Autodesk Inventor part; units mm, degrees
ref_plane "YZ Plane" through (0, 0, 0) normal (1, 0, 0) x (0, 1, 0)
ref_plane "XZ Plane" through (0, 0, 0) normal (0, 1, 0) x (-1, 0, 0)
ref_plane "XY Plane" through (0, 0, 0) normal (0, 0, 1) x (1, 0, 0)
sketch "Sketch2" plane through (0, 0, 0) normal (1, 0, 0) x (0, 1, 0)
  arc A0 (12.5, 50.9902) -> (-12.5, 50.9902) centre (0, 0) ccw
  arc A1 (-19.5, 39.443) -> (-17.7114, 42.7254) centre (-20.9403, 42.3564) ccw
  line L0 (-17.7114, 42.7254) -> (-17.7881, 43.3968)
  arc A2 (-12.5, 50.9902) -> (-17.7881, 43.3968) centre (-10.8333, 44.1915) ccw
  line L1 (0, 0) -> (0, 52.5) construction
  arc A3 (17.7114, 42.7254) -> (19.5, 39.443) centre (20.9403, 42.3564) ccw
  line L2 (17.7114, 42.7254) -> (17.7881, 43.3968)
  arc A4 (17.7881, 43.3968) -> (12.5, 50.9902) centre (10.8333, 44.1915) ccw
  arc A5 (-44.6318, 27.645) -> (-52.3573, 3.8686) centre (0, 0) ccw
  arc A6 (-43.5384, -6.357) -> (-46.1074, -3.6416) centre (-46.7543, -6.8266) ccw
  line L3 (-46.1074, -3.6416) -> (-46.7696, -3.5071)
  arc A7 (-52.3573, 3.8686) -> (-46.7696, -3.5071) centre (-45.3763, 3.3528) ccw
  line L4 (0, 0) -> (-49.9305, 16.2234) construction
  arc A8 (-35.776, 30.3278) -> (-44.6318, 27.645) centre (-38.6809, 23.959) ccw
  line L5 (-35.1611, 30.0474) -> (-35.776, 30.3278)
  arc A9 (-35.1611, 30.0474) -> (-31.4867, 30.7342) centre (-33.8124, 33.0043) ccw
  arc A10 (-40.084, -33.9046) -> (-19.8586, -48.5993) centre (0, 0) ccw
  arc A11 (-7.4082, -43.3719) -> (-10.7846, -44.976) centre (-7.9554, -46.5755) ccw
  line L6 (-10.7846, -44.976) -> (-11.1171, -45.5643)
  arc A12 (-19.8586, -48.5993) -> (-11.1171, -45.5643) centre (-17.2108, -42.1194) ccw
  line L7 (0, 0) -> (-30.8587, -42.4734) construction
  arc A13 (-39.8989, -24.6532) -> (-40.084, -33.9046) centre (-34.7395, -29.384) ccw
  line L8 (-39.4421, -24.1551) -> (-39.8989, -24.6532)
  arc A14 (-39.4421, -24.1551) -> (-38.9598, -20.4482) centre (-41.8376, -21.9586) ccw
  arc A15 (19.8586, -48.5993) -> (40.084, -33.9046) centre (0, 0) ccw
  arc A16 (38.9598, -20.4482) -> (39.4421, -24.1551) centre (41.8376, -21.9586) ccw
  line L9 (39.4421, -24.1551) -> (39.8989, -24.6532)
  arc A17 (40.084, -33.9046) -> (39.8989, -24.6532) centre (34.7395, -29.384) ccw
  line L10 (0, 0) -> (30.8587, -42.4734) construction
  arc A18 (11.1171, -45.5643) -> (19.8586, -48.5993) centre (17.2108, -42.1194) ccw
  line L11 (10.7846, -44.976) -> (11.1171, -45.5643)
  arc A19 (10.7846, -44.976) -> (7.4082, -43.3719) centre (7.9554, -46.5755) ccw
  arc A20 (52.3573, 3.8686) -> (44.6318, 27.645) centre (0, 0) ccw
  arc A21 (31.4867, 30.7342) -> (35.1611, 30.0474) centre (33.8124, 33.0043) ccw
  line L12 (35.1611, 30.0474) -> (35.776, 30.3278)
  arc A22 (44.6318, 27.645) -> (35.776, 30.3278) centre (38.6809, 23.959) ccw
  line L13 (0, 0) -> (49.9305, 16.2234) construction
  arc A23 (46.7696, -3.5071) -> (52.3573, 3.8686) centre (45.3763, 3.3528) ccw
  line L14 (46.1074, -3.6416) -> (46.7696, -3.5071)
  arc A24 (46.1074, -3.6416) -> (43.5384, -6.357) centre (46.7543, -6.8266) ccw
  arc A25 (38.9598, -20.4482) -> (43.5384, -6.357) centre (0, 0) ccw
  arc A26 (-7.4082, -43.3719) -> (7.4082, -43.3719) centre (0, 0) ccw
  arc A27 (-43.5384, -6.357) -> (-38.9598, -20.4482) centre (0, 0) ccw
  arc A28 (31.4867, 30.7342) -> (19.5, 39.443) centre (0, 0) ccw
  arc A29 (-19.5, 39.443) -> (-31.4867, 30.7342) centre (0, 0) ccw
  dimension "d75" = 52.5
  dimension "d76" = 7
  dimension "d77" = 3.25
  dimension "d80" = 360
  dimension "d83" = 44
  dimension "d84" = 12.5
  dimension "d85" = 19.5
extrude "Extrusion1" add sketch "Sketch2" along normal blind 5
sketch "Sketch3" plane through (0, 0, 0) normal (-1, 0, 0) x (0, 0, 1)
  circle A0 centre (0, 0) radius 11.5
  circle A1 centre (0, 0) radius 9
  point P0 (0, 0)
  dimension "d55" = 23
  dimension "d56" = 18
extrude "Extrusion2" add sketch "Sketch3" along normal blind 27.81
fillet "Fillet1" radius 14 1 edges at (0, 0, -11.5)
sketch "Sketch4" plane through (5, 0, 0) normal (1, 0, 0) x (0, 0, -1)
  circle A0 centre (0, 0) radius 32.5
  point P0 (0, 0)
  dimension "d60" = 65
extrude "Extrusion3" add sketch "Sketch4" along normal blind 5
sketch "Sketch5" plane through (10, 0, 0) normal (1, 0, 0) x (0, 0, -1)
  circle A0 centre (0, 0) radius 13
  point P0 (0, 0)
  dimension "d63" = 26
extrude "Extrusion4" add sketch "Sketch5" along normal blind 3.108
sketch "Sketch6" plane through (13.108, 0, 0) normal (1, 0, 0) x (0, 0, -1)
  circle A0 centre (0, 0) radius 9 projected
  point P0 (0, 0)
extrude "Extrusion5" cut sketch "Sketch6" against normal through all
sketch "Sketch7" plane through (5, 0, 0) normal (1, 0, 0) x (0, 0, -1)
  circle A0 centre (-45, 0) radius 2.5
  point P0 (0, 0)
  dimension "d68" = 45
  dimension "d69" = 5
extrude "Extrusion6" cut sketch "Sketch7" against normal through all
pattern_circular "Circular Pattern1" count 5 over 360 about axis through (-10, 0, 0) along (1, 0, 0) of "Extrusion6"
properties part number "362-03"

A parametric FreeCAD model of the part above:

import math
import FreeCAD as App
import Part
import Sketcher
from FreeCAD import Vector


def edges_at(feature, points):
    """Names of the edges that pass closest to the given points."""
    edges = feature.Shape.Edges
    near = lambda p: min(range(len(edges)), key=lambda i: edges[i].distToShape(Part.Vertex(*p))[0])
    return sorted({f"Edge{near(p) + 1}" for p in points})

doc = App.newDocument("Part")
body = doc.addObject("PartDesign::Body", "Body")

sketch1 = body.newObject("Sketcher::SketchObject", "Sketch")
sketch1.AttachmentSupport = (doc.getObject("YZ_Plane"), [""])
sketch1.MapMode = "FlatFace"
sketch1.addGeometry([
    Part.ArcOfCircle(Part.Circle(Vector(10.8333, 44.1915, 0), Vector(0, 0, 1), 7.000057), math.radians(-6.51871), math.radians(76.225602)),
    Part.ArcOfCircle(Part.Circle(Vector(0, 0, 0), Vector(0, 0, 1), 52.500005), math.radians(76.225854), math.radians(103.774146)),
    Part.ArcOfCircle(Part.Circle(Vector(-10.8333, 44.1915, 0), Vector(0, 0, 1), 7.000015), math.radians(103.774398), math.radians(186.51871)),
    Part.LineSegment(Vector(-17.7881, 43.3968, 0), Vector(-17.7114, 42.7254, 0)),
    Part.ArcOfCircle(Part.Circle(Vector(-20.9403, 42.3564, 0), Vector(0, 0, 1), 3.249979), math.radians(-63.693551), math.radians(6.519501)),
    Part.ArcOfCircle(Part.Circle(Vector(0.000636, -0.001052, 0), Vector(0, 0, 1), 44.001228), math.radians(116.307204), math.radians(135.6925)),
    Part.ArcOfCircle(Part.Circle(Vector(-33.8124, 33.0043, 0), Vector(0, 0, 1), 3.249961), math.radians(-114.518658), math.radians(-44.306869)),
    Part.LineSegment(Vector(-35.1611, 30.0474, 0), Vector(-35.776, 30.3278, 0)),
    Part.ArcOfCircle(Part.Circle(Vector(-38.6809, 23.959, 0), Vector(0, 0, 1), 7.000004), math.radians(65.481598), math.radians(148.225839)),
    Part.ArcOfCircle(Part.Circle(Vector(0.001412, -0.000655, 0), Vector(0, 0, 1), 52.501484), math.radians(148.226071), math.radians(175.773583)),
    Part.ArcOfCircle(Part.Circle(Vector(-45.3763, 3.3528, 0), Vector(0, 0, 1), 7.000029), math.radians(175.774307), math.radians(258.518949)),
    Part.LineSegment(Vector(-46.7696, -3.5071, 0), Vector(-46.1074, -3.6416, 0)),
    Part.ArcOfCircle(Part.Circle(Vector(-46.7543, -6.8266, 0), Vector(0, 0, 1), 3.250006), math.radians(8.307866), math.radians(78.518926)),
    Part.ArcOfCircle(Part.Circle(Vector(-0.003432, -0.000802, 0), Vector(0, 0, 1), 43.99653), math.radians(-171.693385), math.radians(-152.305941)),
    Part.ArcOfCircle(Part.Circle(Vector(-41.8376, -21.9586, 0), Vector(0, 0, 1), 3.250082), math.radians(-42.518569), math.radians(27.692527)),
    Part.LineSegment(Vector(-39.4421, -24.1551, 0), Vector(-39.8989, -24.6532, 0)),
    Part.ArcOfCircle(Part.Circle(Vector(-34.7395, -29.384, 0), Vector(0, 0, 1), 6.999991), math.radians(137.481407), math.radians(220.225928)),
    Part.ArcOfCircle(Part.Circle(Vector(0.000794, 0.000855, 0), Vector(0, 0, 1), 52.501149), math.radians(-139.774012), math.radians(-112.22631)),
    Part.ArcOfCircle(Part.Circle(Vector(-17.2108, -42.1194, 0), Vector(0, 0, 1), 6.999996), math.radians(-112.22578), math.radians(-29.480412)),
    Part.LineSegment(Vector(-11.1171, -45.5643, 0), Vector(-10.7846, -44.976, 0)),
    Part.ArcOfCircle(Part.Circle(Vector(-7.9554, -46.5755, 0), Vector(0, 0, 1), 3.249997), math.radians(80.306975), math.radians(150.518172)),
    Part.ArcOfCircle(Part.Circle(Vector(0, 0, 0), Vector(0, 0, 1), 44.000036), math.radians(-99.692947), math.radians(-80.307053)),
    Part.ArcOfCircle(Part.Circle(Vector(7.9554, -46.5755, 0), Vector(0, 0, 1), 3.250042), math.radians(29.481828), math.radians(99.693025)),
    Part.LineSegment(Vector(10.7846, -44.976, 0), Vector(11.1171, -45.5643, 0)),
    Part.ArcOfCircle(Part.Circle(Vector(17.2108, -42.1194, 0), Vector(0, 0, 1), 7.000037), math.radians(-150.519588), math.radians(-67.77422)),
    Part.ArcOfCircle(Part.Circle(Vector(0.000568, -0.00102, 0), Vector(0, 0, 1), 52.498898), math.radians(-67.774292), math.radians(-40.225386)),
    Part.ArcOfCircle(Part.Circle(Vector(34.7395, -29.384, 0), Vector(0, 0, 1), 6.999965), math.radians(-40.225928), math.radians(42.518593)),
    Part.LineSegment(Vector(39.8989, -24.6532, 0), Vector(39.4421, -24.1551, 0)),
    Part.ArcOfCircle(Part.Circle(Vector(41.8376, -21.9586, 0), Vector(0, 0, 1), 3.250083), math.radians(152.307473), math.radians(222.518569)),
    Part.ArcOfCircle(Part.Circle(Vector(-0.003248, 0.001369, 0), Vector(0, 0, 1), 44.003454), math.radians(-27.692519), math.radians(-8.308155)),
    Part.ArcOfCircle(Part.Circle(Vector(46.7543, -6.8266, 0), Vector(0, 0, 1), 3.250031), math.radians(101.481074), math.radians(171.692134)),
    Part.LineSegment(Vector(46.1074, -3.6416, 0), Vector(46.7696, -3.5071, 0)),
    Part.ArcOfCircle(Part.Circle(Vector(45.3763, 3.3528, 0), Vector(0, 0, 1), 6.999965), math.radians(-78.518949), math.radians(4.225693)),
    Part.ArcOfCircle(Part.Circle(Vector(0.001527, 0.0003, 0), Vector(0, 0, 1), 52.498483), math.radians(4.225614), math.radians(31.774732)),
    Part.ArcOfCircle(Part.Circle(Vector(38.6809, 23.959, 0), Vector(0, 0, 1), 6.999986), math.radians(31.774161), math.radians(114.518402)),
    Part.LineSegment(Vector(35.776, 30.3278, 0), Vector(35.1611, 30.0474, 0)),
    Part.ArcOfCircle(Part.Circle(Vector(33.8124, 33.0043, 0), Vector(0, 0, 1), 3.249959), math.radians(-135.693131), math.radians(-65.481342)),
    Part.ArcOfCircle(Part.Circle(Vector(0.000804, 0.00093, 0), Vector(0, 0, 1), 43.998813), math.radians(44.306963), math.radians(63.693333)),
    Part.ArcOfCircle(Part.Circle(Vector(20.9403, 42.3564, 0), Vector(0, 0, 1), 3.249916), math.radians(173.480499), math.radians(243.693551)),
    Part.LineSegment(Vector(17.7114, 42.7254, 0), Vector(17.7881, 43.3968, 0)),
], False)
sketch1.addConstraint([
    Sketcher.Constraint("Tangent", 0, 2, 1, 1),
    Sketcher.Constraint("Tangent", 1, 2, 2, 1),
    Sketcher.Constraint("Tangent", 2, 2, 3, 1),
    Sketcher.Constraint("Tangent", 3, 2, 4, 2),
    Sketcher.Constraint("Tangent", 4, 1, 5, 1),
    Sketcher.Constraint("Tangent", 5, 2, 6, 2),
    Sketcher.Constraint("Tangent", 6, 1, 7, 1),
    Sketcher.Constraint("Tangent", 7, 2, 8, 1),
    Sketcher.Constraint("Tangent", 8, 2, 9, 1),
    Sketcher.Constraint("Tangent", 9, 2, 10, 1),
    Sketcher.Constraint("Tangent", 10, 2, 11, 1),
    Sketcher.Constraint("Tangent", 11, 2, 12, 2),
    Sketcher.Constraint("Tangent", 12, 1, 13, 1),
    Sketcher.Constraint("Tangent", 13, 2, 14, 2),
    Sketcher.Constraint("Tangent", 14, 1, 15, 1),
    Sketcher.Constraint("Tangent", 15, 2, 16, 1),
    Sketcher.Constraint("Tangent", 16, 2, 17, 1),
    Sketcher.Constraint("Tangent", 17, 2, 18, 1),
    Sketcher.Constraint("Tangent", 18, 2, 19, 1),
    Sketcher.Constraint("Tangent", 19, 2, 20, 2),
    Sketcher.Constraint("Tangent", 20, 1, 21, 1),
    Sketcher.Constraint("Tangent", 21, 2, 22, 2),
    Sketcher.Constraint("Tangent", 22, 1, 23, 1),
    Sketcher.Constraint("Tangent", 23, 2, 24, 1),
    Sketcher.Constraint("Tangent", 24, 2, 25, 1),
    Sketcher.Constraint("Tangent", 25, 2, 26, 1),
    Sketcher.Constraint("Tangent", 26, 2, 27, 1),
    Sketcher.Constraint("Tangent", 27, 2, 28, 2),
    Sketcher.Constraint("Tangent", 28, 1, 29, 1),
    Sketcher.Constraint("Tangent", 29, 2, 30, 2),
    Sketcher.Constraint("Tangent", 30, 1, 31, 1),
    Sketcher.Constraint("Tangent", 31, 2, 32, 1),
    Sketcher.Constraint("Tangent", 32, 2, 33, 1),
    Sketcher.Constraint("Tangent", 33, 2, 34, 1),
    Sketcher.Constraint("Tangent", 34, 2, 35, 1),
    Sketcher.Constraint("Tangent", 35, 2, 36, 2),
    Sketcher.Constraint("Tangent", 36, 1, 37, 1),
    Sketcher.Constraint("Tangent", 37, 2, 38, 2),
    Sketcher.Constraint("Tangent", 38, 1, 39, 1),
    Sketcher.Constraint("Tangent", 39, 2, 0, 1),
    Sketcher.Constraint("Coincident", 1, 3, -1, 1),
    Sketcher.Constraint("Coincident", 21, 3, -1, 1),
    Sketcher.Constraint("Coincident", 25, 3, 5, 3),
    Sketcher.Constraint("Coincident", 37, 3, 17, 3),
    Sketcher.Constraint("Equal", 0, 2),
    Sketcher.Constraint("Equal", 4, 6),
    Sketcher.Constraint("Equal", 2, 8),
    Sketcher.Constraint("Equal", 8, 10),
    Sketcher.Constraint("Equal", 6, 12),
    Sketcher.Constraint("Equal", 12, 14),
    Sketcher.Constraint("Equal", 10, 16),
    Sketcher.Constraint("Equal", 16, 18),
    Sketcher.Constraint("Equal", 14, 20),
    Sketcher.Constraint("Equal", 20, 22),
    Sketcher.Constraint("Equal", 18, 24),
    Sketcher.Constraint("Equal", 24, 26),
    Sketcher.Constraint("Equal", 22, 28),
    Sketcher.Constraint("Equal", 28, 30),
    Sketcher.Constraint("Equal", 26, 32),
    Sketcher.Constraint("Equal", 32, 34),
    Sketcher.Constraint("Equal", 30, 36),
    Sketcher.Constraint("Equal", 36, 38),
    Sketcher.Constraint("Symmetric", 18, 3, 24, 3, -2),
    Sketcher.Constraint("Symmetric", 16, 3, 26, 3, -2),
    Sketcher.Constraint("Symmetric", 14, 3, 28, 3, -2),
    Sketcher.Constraint("Symmetric", 12, 3, 30, 3, -2),
    Sketcher.Constraint("Symmetric", 10, 3, 32, 3, -2),
    Sketcher.Constraint("Symmetric", 8, 3, 34, 3, -2),
    Sketcher.Constraint("Symmetric", 6, 3, 36, 3, -2),
    Sketcher.Constraint("Symmetric", 3, 2, 38, 1, -2),
    Sketcher.Constraint("Symmetric", 5, 3, 17, 3, -1),
    Sketcher.Constraint("Symmetric", 9, 3, 33, 3, -1),
    Sketcher.Constraint("Horizontal", 9, 3, 13, 3),
    Sketcher.Constraint("Horizontal", 20, 3, 22, 3),
    Sketcher.Constraint("Vertical", 13, 3, 29, 3),
    Sketcher.Constraint("Equal", 3, 7),
    Sketcher.Constraint("Equal", 7, 11),
    Sketcher.Constraint("Equal", 11, 15),
    Sketcher.Constraint("Equal", 15, 19),
    Sketcher.Constraint("Radius", 0, 7.0),
    Sketcher.Constraint("Radius", 21, 44.0),
    Sketcher.Constraint("Radius", 1, 52.5),
    Sketcher.Constraint("Radius", 4, 3.25),
    Sketcher.Constraint("DistanceX", -1, 1, 0, 2, 12.5),
    Sketcher.Constraint("DistanceX", 4, 1, -1, 1, 19.5),
    Sketcher.Constraint("Radius", 25, 52.499),
    Sketcher.Constraint("Radius", 5, 44.0012),
    Sketcher.Constraint("Radius", 9, 52.5015),
    Sketcher.Constraint("Radius", 13, 43.9965),
    Sketcher.Constraint("Radius", 17, 52.5011),
    Sketcher.Constraint("Radius", 29, 44.0035),
    Sketcher.Constraint("Radius", 33, 52.4985),
    Sketcher.Constraint("DistanceX", 8, 3, -1, 1, 38.681),
    Sketcher.Constraint("DistanceY", 16, 3, -1, 1, 29.384),
    Sketcher.Constraint("DistanceY", 12, 1, -1, 1, 6.357),
    Sketcher.Constraint("DistanceY", 19, 2, -1, 1, 44.976),
])
pad1 = body.newObject("PartDesign::Pad", "Pad")
pad1.Profile = sketch1
pad1.Length = 5

sketch2 = body.newObject("Sketcher::SketchObject", "Sketch001")
sketch2.AttachmentSupport = (doc.getObject("YZ_Plane"), [""])
sketch2.MapMode = "FlatFace"
sketch2.addGeometry([
    Part.Circle(Vector(0, 0, 0), Vector(0, 0, 1), 11.5),
    Part.Circle(Vector(0, 0, 0), Vector(0, 0, 1), 9),
], False)
sketch2.addConstraint([
    Sketcher.Constraint("Coincident", 0, 3, -1, 1),
    Sketcher.Constraint("Coincident", 1, 3, -1, 1),
    Sketcher.Constraint("Diameter", 0, 23.0),
    Sketcher.Constraint("Diameter", 1, 18.0),
])
pad2 = body.newObject("PartDesign::Pad", "Pad001")
pad2.Profile = sketch2
pad2.Length = 27.81
pad2.Reversed = True
doc.recompute()

fillet = body.newObject("PartDesign::Fillet", "Fillet")
fillet.Base = (pad2, edges_at(pad2, [(0, 0, -11.5)]))
fillet.Radius = 14

sketch3 = body.newObject("Sketcher::SketchObject", "Sketch002")
sketch3.AttachmentSupport = (doc.getObject("YZ_Plane"), [""])
sketch3.MapMode = "FlatFace"
sketch3.AttachmentOffset = App.Placement(Vector(0, 0, 5), App.Rotation())
sketch3.addGeometry(Part.Circle(Vector(0, 0, 0), Vector(0, 0, 1), 32.5), False)
sketch3.addConstraint([
    Sketcher.Constraint("Coincident", 0, 3, -1, 1),
    Sketcher.Constraint("Diameter", 0, 65.0),
])
pad3 = body.newObject("PartDesign::Pad", "Pad002")
pad3.Profile = sketch3
pad3.Length = 5

sketch4 = body.newObject("Sketcher::SketchObject", "Sketch003")
sketch4.AttachmentSupport = (doc.getObject("YZ_Plane"), [""])
sketch4.MapMode = "FlatFace"
sketch4.AttachmentOffset = App.Placement(Vector(0, 0, 10), App.Rotation())
sketch4.addGeometry(Part.Circle(Vector(0, 0, 0), Vector(0, 0, 1), 13), False)
sketch4.addConstraint([
    Sketcher.Constraint("Coincident", 0, 3, -1, 1),
    Sketcher.Constraint("Diameter", 0, 26.0),
])
pad4 = body.newObject("PartDesign::Pad", "Pad003")
pad4.Profile = sketch4
pad4.Length = 3.108

sketch5 = body.newObject("Sketcher::SketchObject", "Sketch004")
sketch5.AttachmentSupport = (doc.getObject("YZ_Plane"), [""])
sketch5.MapMode = "FlatFace"
sketch5.AttachmentOffset = App.Placement(Vector(0, 0, 13.108), App.Rotation())
sketch5.addGeometry(Part.Circle(Vector(0, 0, 0), Vector(0, 0, 1), 9), False)
sketch5.addConstraint([
    Sketcher.Constraint("Coincident", 0, 3, -1, 1),
    Sketcher.Constraint("Diameter", 0, 18.0),
])
pocket1 = body.newObject("PartDesign::Pocket", "Pocket")
pocket1.Profile = sketch5
pocket1.Type = "ThroughAll"

sketch6 = body.newObject("Sketcher::SketchObject", "Sketch005")
sketch6.AttachmentSupport = (doc.getObject("YZ_Plane"), [""])
sketch6.MapMode = "FlatFace"
sketch6.AttachmentOffset = App.Placement(Vector(0, 0, 5), App.Rotation())
sketch6.addGeometry(Part.Circle(Vector(0, 45, 0), Vector(0, 0, 1), 2.5), False)
sketch6.addConstraint([
    Sketcher.Constraint("PointOnObject", 0, 3, -2),
    Sketcher.Constraint("Diameter", 0, 5.0),
    Sketcher.Constraint("DistanceY", -1, 1, 0, 3, 45.0),
])
pocket2 = body.newObject("PartDesign::Pocket", "Pocket001")
pocket2.Profile = sketch6
pocket2.Type = "ThroughAll"
doc.recompute()

polarpattern = body.newObject("PartDesign::PolarPattern", "PolarPattern")
polarpattern.Originals = [pocket2]
polarpattern.Axis = (doc.getObject("X_Axis"), [""])
polarpattern.Angle = 360
polarpattern.Occurrences = 5
body.Tip = polarpattern

doc.recompute()
